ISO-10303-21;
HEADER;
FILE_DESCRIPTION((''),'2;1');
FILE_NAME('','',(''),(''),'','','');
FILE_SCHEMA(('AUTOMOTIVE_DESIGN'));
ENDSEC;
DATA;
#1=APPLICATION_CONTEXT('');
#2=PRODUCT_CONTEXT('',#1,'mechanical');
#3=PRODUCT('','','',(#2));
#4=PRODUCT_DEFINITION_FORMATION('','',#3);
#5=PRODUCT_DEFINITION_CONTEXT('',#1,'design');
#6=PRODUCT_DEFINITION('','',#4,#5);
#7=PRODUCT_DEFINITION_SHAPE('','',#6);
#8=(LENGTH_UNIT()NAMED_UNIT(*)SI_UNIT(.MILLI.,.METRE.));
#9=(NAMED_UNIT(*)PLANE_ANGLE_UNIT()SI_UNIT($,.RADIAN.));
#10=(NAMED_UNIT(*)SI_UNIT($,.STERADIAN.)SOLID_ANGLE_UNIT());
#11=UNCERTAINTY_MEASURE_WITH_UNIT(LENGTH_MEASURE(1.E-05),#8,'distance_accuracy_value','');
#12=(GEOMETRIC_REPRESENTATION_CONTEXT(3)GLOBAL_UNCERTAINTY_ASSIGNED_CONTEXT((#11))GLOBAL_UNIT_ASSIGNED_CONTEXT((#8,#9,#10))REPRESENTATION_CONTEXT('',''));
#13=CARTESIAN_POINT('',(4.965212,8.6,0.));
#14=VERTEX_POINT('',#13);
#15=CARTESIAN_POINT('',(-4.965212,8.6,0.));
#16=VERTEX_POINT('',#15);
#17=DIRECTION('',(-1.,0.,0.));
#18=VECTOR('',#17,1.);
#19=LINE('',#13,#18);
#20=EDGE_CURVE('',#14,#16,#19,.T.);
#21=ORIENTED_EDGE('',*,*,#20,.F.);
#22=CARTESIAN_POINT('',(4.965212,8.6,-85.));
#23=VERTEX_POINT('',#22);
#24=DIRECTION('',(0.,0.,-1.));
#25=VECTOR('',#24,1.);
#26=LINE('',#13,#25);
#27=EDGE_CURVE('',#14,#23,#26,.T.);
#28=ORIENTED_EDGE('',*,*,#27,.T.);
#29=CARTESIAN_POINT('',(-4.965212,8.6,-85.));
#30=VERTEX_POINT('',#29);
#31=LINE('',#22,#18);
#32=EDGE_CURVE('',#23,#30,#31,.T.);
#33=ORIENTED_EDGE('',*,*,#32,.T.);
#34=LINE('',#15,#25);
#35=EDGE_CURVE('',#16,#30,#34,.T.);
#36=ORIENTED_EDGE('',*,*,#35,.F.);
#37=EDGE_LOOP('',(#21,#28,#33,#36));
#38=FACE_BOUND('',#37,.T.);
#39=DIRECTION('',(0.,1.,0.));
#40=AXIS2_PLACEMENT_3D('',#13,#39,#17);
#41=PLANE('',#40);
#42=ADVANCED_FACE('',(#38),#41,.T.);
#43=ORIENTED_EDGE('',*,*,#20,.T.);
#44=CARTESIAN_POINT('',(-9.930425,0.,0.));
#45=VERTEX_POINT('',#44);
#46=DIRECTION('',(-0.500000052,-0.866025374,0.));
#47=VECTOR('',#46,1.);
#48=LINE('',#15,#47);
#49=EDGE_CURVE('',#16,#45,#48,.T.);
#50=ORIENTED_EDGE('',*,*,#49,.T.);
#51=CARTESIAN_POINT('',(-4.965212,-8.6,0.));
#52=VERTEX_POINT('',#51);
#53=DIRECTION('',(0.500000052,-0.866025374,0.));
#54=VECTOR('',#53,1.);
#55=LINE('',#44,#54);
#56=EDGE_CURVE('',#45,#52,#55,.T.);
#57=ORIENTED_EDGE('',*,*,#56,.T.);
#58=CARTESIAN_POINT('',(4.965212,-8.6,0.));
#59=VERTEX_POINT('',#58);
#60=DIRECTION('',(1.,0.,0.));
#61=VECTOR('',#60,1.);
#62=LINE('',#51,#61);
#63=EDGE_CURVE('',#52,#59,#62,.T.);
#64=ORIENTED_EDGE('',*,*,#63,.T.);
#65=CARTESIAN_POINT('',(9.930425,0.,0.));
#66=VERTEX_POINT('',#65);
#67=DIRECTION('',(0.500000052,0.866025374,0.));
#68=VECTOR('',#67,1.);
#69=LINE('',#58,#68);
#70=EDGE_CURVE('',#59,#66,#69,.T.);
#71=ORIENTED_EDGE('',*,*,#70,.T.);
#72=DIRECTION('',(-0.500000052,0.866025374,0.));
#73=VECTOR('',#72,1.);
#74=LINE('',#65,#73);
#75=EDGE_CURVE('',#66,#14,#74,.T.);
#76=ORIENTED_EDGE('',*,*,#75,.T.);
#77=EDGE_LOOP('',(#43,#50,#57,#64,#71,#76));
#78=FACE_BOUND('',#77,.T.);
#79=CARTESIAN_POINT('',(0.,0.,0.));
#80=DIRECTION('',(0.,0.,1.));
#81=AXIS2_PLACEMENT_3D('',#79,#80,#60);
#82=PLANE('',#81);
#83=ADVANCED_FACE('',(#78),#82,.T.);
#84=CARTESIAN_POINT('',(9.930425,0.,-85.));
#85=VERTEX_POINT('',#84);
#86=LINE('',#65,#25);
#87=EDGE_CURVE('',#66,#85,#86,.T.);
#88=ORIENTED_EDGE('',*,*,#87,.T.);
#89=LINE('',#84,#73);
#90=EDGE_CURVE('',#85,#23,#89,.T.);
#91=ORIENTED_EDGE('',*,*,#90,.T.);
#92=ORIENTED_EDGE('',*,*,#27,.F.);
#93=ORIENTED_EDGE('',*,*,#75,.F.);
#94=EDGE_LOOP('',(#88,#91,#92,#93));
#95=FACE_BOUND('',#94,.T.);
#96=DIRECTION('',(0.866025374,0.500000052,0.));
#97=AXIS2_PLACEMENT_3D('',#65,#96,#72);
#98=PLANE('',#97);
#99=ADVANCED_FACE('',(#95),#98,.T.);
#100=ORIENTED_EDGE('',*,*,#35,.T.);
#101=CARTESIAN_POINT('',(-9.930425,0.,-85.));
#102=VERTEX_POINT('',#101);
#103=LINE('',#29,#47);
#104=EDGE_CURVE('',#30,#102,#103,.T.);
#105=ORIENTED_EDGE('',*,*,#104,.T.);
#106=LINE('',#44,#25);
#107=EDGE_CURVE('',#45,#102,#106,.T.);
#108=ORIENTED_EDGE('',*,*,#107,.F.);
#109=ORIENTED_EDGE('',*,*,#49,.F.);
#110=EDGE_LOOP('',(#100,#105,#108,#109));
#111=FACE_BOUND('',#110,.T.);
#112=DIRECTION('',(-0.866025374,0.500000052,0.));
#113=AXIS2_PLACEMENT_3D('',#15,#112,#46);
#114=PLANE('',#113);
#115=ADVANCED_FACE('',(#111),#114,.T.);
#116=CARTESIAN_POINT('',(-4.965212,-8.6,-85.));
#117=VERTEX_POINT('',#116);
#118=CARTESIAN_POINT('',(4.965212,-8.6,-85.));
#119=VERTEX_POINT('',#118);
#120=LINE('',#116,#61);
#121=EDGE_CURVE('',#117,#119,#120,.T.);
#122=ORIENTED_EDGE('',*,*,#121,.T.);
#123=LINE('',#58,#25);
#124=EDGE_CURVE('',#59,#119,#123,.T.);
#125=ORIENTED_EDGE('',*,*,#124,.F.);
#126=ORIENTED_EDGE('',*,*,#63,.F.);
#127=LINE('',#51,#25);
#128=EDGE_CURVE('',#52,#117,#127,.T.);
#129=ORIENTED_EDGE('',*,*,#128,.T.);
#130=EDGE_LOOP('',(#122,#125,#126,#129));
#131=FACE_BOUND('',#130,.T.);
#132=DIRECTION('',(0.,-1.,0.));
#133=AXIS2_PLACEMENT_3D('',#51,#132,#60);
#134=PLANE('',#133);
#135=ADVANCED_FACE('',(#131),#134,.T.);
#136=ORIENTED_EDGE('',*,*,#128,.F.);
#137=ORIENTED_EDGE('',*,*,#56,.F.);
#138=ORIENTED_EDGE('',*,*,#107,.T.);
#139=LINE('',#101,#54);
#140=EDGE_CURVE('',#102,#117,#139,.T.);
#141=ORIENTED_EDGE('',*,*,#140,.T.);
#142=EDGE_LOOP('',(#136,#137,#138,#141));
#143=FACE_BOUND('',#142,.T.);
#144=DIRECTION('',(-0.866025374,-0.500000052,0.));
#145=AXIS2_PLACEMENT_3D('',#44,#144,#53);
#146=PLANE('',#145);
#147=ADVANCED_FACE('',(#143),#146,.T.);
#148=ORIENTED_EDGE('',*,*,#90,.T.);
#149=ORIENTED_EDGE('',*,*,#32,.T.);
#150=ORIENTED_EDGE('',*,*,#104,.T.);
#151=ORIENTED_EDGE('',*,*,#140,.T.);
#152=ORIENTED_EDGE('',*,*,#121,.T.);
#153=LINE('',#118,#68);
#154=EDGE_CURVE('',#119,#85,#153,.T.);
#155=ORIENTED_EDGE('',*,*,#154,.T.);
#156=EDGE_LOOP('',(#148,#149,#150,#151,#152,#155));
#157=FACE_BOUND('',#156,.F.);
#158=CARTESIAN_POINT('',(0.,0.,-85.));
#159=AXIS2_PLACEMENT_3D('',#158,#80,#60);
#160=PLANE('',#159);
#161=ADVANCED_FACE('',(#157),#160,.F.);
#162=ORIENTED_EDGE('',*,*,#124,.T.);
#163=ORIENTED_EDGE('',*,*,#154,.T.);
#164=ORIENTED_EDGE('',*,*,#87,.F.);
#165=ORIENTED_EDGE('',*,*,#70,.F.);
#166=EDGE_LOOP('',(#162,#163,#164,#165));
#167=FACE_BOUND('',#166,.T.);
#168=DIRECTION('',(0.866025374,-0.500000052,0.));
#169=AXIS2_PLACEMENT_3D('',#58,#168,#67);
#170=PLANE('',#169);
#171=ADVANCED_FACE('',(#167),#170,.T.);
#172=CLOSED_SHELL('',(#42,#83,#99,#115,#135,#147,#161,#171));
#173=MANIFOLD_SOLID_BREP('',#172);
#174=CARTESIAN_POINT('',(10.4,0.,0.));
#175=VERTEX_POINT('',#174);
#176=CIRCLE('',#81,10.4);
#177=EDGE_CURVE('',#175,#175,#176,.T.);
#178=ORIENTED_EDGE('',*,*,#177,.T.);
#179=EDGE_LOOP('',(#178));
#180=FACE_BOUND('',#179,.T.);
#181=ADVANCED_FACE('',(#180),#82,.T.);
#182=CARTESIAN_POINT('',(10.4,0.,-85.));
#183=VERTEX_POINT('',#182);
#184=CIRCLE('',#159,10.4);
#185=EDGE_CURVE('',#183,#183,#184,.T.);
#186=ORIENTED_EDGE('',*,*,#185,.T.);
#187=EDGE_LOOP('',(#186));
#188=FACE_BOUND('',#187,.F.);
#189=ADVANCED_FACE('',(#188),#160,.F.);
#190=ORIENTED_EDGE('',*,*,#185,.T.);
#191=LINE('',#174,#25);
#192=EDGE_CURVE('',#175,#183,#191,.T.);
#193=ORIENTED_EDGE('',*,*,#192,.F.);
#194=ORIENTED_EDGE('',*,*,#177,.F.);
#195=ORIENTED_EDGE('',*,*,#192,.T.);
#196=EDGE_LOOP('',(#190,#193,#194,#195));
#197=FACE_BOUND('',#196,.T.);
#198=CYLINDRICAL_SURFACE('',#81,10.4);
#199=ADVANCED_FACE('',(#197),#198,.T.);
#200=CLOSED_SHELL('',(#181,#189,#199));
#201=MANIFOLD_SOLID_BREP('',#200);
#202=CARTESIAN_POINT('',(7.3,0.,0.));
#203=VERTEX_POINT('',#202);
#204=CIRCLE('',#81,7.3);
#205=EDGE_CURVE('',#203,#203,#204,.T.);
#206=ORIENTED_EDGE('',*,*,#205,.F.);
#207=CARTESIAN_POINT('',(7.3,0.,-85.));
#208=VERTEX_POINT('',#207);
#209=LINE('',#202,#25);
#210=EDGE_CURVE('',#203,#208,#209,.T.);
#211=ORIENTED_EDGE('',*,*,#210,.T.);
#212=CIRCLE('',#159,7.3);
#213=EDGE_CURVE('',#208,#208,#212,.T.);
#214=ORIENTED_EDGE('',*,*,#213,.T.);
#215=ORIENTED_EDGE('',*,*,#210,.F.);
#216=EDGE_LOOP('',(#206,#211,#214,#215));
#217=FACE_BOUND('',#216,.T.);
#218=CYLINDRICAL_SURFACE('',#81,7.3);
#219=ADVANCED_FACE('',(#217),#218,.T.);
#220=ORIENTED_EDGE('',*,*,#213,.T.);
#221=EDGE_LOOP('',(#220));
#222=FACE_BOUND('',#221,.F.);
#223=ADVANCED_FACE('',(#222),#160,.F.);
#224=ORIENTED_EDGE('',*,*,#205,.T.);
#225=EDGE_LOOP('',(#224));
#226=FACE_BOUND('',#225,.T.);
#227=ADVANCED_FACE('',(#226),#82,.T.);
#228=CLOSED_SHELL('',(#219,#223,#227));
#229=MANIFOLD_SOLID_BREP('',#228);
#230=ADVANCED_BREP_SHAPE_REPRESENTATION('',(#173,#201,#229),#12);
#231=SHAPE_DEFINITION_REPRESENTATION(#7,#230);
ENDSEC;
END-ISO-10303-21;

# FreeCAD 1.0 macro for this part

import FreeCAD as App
import Part
import Sketcher
from FreeCAD import Vector
Q = App.Units.Quantity


def add_polygon(sketch, points):
    """Adds a closed chain of lines whose ends are joined by coincident constraints."""
    first, n = sketch.GeometryCount, len(points)
    for a, b in zip(points, points[1:] + points[:1]):
        sketch.addGeometry(Part.LineSegment(App.Vector(*a, 0), App.Vector(*b, 0)), False)
    for i in range(n):
        sketch.addConstraint(Sketcher.Constraint("Coincident", first + i, 2, first + (i + 1) % n, 1))

doc = App.newDocument("Part")
body = doc.addObject("PartDesign::Body", "Body")

# Sketch on XY plane
sketch1 = body.newObject("Sketcher::SketchObject", "Sketch")
sketch1.AttachmentSupport = (doc.getObject("XY_Plane"), [""])
sketch1.MapMode = "FlatFace"
add_polygon(sketch1, [(5, 9), (-5, 9), (-10, 0), (-5, -9), (5, -9), (10, 0)])  # lines 0-5
sketch1.addConstraint(Sketcher.Constraint("Horizontal", 0))
sketch1.addConstraint(Sketcher.Constraint("Horizontal", 3))
sketch1.addConstraint(Sketcher.Constraint("Symmetric", 0, 2, 3, 2, -1, 1))
sketch1.addConstraint(Sketcher.Constraint("Symmetric", 1, 2, 4, 2, -1, 1))
sketch1.addConstraint(Sketcher.Constraint("PointOnObject", 1, 2, -1))
sketch1.addConstraint(Sketcher.Constraint("Parallel", 2, 5))
sketch1.addConstraint(Sketcher.Constraint("Vertical", 0, 2, 2, 2))
sketch1.addConstraint(Sketcher.Constraint("Angle", 1, Q("-120.000003 deg")))
sketch1.addConstraint(Sketcher.Constraint("DistanceY", -1, 1, 0, 2, 8.6))
sketch1.addConstraint(Sketcher.Constraint("DistanceX", 0, 2, 0, 1, 9.930424))
pad1 = body.newObject("PartDesign::Pad", "Pad")
pad1.Profile = sketch1
pad1.Length = 85
pad1.Reversed = True
body2 = doc.addObject("PartDesign::Body", "Body001")

# Sketch on XY plane
sketch2 = body2.newObject("Sketcher::SketchObject", "Sketch001")
sketch2.AttachmentSupport = (doc.getObject("XY_Plane001"), [""])
sketch2.MapMode = "FlatFace"
sketch2.addGeometry(Part.Circle(Vector(0, 0, 0), Vector(0, 0, 1), 10), False)
sketch2.addConstraint(Sketcher.Constraint("Coincident", 0, 3, -1, 1))
sketch2.addConstraint(Sketcher.Constraint("Diameter", 0, 20.8))
pad2 = body2.newObject("PartDesign::Pad", "Pad001")
pad2.Profile = sketch2
pad2.Length = 85
pad2.Reversed = True
body3 = doc.addObject("PartDesign::Body", "Body002")

# Sketch on XY plane
sketch3 = body3.newObject("Sketcher::SketchObject", "Sketch002")
sketch3.AttachmentSupport = (doc.getObject("XY_Plane002"), [""])
sketch3.MapMode = "FlatFace"
sketch3.addGeometry(Part.Circle(Vector(0, 0, 0), Vector(0, 0, 1), 7), False)
sketch3.addConstraint(Sketcher.Constraint("Coincident", 0, 3, -1, 1))
sketch3.addConstraint(Sketcher.Constraint("Diameter", 0, 14.6))
pad3 = body3.newObject("PartDesign::Pad", "Pad002")
pad3.Profile = sketch3
pad3.Length = 85
pad3.Reversed = True

doc.recompute()
